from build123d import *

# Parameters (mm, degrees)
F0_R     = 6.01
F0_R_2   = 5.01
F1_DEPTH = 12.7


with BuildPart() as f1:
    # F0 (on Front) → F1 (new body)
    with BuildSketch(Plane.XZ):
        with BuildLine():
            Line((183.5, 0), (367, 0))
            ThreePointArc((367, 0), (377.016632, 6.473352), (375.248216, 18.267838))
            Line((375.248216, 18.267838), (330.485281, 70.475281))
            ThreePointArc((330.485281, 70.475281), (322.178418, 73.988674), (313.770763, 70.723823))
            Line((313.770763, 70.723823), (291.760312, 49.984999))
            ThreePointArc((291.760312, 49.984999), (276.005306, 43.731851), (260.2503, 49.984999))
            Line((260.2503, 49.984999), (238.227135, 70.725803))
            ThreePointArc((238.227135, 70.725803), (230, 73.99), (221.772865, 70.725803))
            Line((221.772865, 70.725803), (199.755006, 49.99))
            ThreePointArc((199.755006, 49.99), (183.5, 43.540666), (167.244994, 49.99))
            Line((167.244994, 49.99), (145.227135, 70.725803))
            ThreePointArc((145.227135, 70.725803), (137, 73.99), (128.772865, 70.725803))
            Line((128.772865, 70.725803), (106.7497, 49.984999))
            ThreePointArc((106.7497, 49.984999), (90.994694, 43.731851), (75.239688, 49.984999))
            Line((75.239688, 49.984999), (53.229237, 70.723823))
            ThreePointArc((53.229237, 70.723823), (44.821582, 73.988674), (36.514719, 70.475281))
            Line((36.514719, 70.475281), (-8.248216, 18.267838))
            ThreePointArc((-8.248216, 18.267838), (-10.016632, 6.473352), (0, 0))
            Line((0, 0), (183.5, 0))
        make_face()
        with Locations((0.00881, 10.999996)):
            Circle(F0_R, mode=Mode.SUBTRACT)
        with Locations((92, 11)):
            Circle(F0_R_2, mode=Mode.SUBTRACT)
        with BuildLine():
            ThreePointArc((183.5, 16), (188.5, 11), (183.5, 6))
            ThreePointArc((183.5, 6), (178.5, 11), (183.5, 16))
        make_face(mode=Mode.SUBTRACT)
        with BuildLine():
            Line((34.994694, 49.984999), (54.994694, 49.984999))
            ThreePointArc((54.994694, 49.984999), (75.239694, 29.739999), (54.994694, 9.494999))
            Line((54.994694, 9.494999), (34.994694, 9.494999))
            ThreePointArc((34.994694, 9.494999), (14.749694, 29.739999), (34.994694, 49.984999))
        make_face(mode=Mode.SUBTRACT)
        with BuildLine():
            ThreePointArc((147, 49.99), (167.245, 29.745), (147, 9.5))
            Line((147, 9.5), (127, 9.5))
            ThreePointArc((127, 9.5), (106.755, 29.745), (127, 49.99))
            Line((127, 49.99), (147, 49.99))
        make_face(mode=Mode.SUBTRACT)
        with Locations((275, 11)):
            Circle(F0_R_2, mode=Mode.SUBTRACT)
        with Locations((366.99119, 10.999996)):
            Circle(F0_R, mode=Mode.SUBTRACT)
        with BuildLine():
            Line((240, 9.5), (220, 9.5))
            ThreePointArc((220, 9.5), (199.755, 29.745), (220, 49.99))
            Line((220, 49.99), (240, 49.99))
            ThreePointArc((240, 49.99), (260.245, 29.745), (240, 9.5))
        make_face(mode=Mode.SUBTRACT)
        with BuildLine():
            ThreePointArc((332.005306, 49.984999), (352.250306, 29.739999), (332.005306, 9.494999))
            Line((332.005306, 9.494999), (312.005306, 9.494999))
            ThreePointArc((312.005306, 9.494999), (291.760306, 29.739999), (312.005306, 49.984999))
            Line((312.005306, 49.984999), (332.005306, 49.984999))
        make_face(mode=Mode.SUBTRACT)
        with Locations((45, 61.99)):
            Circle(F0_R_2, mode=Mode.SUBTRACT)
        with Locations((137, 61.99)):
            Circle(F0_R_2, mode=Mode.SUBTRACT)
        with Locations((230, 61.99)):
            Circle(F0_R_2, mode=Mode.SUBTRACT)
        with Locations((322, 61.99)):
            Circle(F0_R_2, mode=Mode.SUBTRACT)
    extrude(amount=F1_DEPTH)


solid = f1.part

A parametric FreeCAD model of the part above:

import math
import FreeCAD as App
import Part
import Sketcher
from FreeCAD import Vector
Q = App.Units.Quantity

doc = App.newDocument("Part")
params = doc.addObject("Spreadsheet::Sheet", "Params")
for row, (alias, value) in enumerate([
    ("sketch1_diameter", "10 mm"),
    ("sketch1_radius", "11 mm"),
    ("sketch1_radius2", "11.999998 mm"),
    ("sketch1_radius3", "12.000001 mm"),
    ("sketch1_diameter2", "12.02 mm"),
    ("pad1_length", "12.7 mm"),
], start=1):
    params.set(f"A{row}", alias)
    params.set(f"B{row}", "=" + value)
    params.setAlias(f"B{row}", alias)

body = doc.addObject("PartDesign::Body", "Body")

# Sketch on XZ plane
sketch1 = doc.addObject("Sketcher::SketchObject", "Sketch")
body.addObject(sketch1)
sketch1.AttachmentSupport = (doc.XZ_Plane, [""])
sketch1.MapMode = "FlatFace"
sketch1.addGeometry(Part.ArcOfCircle(Part.Circle(Vector(367, 11, 0), Vector(0, 0, 1), 11), math.radians(-90), math.radians(41)), False)
sketch1.addGeometry(Part.LineSegment(Vector(375, 18, 0), Vector(330, 70, 0)), False)
sketch1.addGeometry(Part.ArcOfCircle(Part.Circle(Vector(322, 62, 0), Vector(0, 0, 1), 12), math.radians(45), math.radians(133)), False)
sketch1.addGeometry(Part.LineSegment(Vector(314, 71, 0), Vector(292, 50, 0)), False)
sketch1.addGeometry(Part.ArcOfCircle(Part.Circle(Vector(276, 67, 0), Vector(0, 0, 1), 23), math.radians(-133), math.radians(-47)), False)
sketch1.addGeometry(Part.LineSegment(Vector(260, 50, 0), Vector(238, 71, 0)), False)
sketch1.addGeometry(Part.ArcOfCircle(Part.Circle(Vector(230, 62, 0), Vector(0, 0, 1), 12), math.radians(47), math.radians(133)), False)
sketch1.addGeometry(Part.LineSegment(Vector(222, 71, 0), Vector(200, 50, 0)), False)
sketch1.addGeometry(Part.ArcOfCircle(Part.Circle(Vector(184, 67, 0), Vector(0, 0, 1), 24), math.radians(-133), math.radians(-47)), False)
sketch1.addGeometry(Part.LineSegment(Vector(167, 50, 0), Vector(145, 71, 0)), False)
sketch1.addGeometry(Part.ArcOfCircle(Part.Circle(Vector(137, 62, 0), Vector(0, 0, 1), 12), math.radians(47), math.radians(133)), False)
sketch1.addGeometry(Part.LineSegment(Vector(129, 71, 0), Vector(107, 50, 0)), False)
sketch1.addGeometry(Part.ArcOfCircle(Part.Circle(Vector(91, 67, 0), Vector(0, 0, 1), 23), math.radians(-133), math.radians(-47)), False)
sketch1.addGeometry(Part.LineSegment(Vector(75, 50, 0), Vector(53, 71, 0)), False)
sketch1.addGeometry(Part.ArcOfCircle(Part.Circle(Vector(45, 62, 0), Vector(0, 0, 1), 12), math.radians(47), math.radians(135)), False)
sketch1.addGeometry(Part.LineSegment(Vector(37, 70, 0), Vector(-8, 18, 0)), False)
sketch1.addGeometry(Part.ArcOfCircle(Part.Circle(Vector(0, 11, 0), Vector(0, 0, 1), 11), math.radians(139), math.radians(270)), False)
sketch1.addGeometry(Part.LineSegment(Vector(0, 0, 0), Vector(367, 0, 0)), False)
sketch1.addGeometry(Part.Circle(Vector(0, 11, 0), Vector(0, 0, 1), 6), False)
sketch1.addGeometry(Part.Circle(Vector(92, 11, 0), Vector(0, 0, 1), 5), False)
sketch1.addGeometry(Part.Circle(Vector(184, 11, 0), Vector(0, 0, 1), 5), False)
sketch1.addGeometry(Part.ArcOfCircle(Part.Circle(Vector(35, 30, 0), Vector(0, 0, 1), 20), math.radians(90), math.radians(270)), False)
sketch1.addGeometry(Part.LineSegment(Vector(35, 50, 0), Vector(55, 50, 0)), False)
sketch1.addGeometry(Part.ArcOfCircle(Part.Circle(Vector(55, 30, 0), Vector(0, 0, 1), 20), math.radians(-90), math.radians(90)), False)
sketch1.addGeometry(Part.LineSegment(Vector(55, 9, 0), Vector(35, 9, 0)), False)
sketch1.addGeometry(Part.LineSegment(Vector(127, 50, 0), Vector(147, 50, 0)), False)
sketch1.addGeometry(Part.ArcOfCircle(Part.Circle(Vector(147, 30, 0), Vector(0, 0, 1), 20), math.radians(-90), math.radians(90)), False)
sketch1.addGeometry(Part.LineSegment(Vector(147, 10, 0), Vector(127, 10, 0)), False)
sketch1.addGeometry(Part.ArcOfCircle(Part.Circle(Vector(127, 30, 0), Vector(0, 0, 1), 20), math.radians(90), math.radians(270)), False)
sketch1.addGeometry(Part.Circle(Vector(275, 11, 0), Vector(0, 0, 1), 5), False)
sketch1.addGeometry(Part.Circle(Vector(367, 11, 0), Vector(0, 0, 1), 6), False)
sketch1.addGeometry(Part.ArcOfCircle(Part.Circle(Vector(240, 30, 0), Vector(0, 0, 1), 20), math.radians(-90), math.radians(90)), False)
sketch1.addGeometry(Part.LineSegment(Vector(240, 10, 0), Vector(220, 10, 0)), False)
sketch1.addGeometry(Part.ArcOfCircle(Part.Circle(Vector(220, 30, 0), Vector(0, 0, 1), 20), math.radians(90), math.radians(270)), False)
sketch1.addGeometry(Part.LineSegment(Vector(220, 50, 0), Vector(240, 50, 0)), False)
sketch1.addGeometry(Part.LineSegment(Vector(312, 50, 0), Vector(332, 50, 0)), False)
sketch1.addGeometry(Part.ArcOfCircle(Part.Circle(Vector(332, 30, 0), Vector(0, 0, 1), 20), math.radians(-90), math.radians(90)), False)
sketch1.addGeometry(Part.LineSegment(Vector(332, 9, 0), Vector(312, 9, 0)), False)
sketch1.addGeometry(Part.ArcOfCircle(Part.Circle(Vector(312, 30, 0), Vector(0, 0, 1), 20), math.radians(90), math.radians(270)), False)
sketch1.addGeometry(Part.Circle(Vector(45, 62, 0), Vector(0, 0, 1), 5), False)
sketch1.addGeometry(Part.Circle(Vector(137, 62, 0), Vector(0, 0, 1), 5), False)
sketch1.addGeometry(Part.Circle(Vector(230, 62, 0), Vector(0, 0, 1), 5), False)
sketch1.addGeometry(Part.Circle(Vector(322, 62, 0), Vector(0, 0, 1), 5), False)
sketch1.addConstraint(Sketcher.Constraint("Coincident", 0, 2, 1, 1))
sketch1.addConstraint(Sketcher.Constraint("Coincident", 1, 2, 2, 1))
sketch1.addConstraint(Sketcher.Constraint("Tangent", 2, 2, 3, 1))
sketch1.addConstraint(Sketcher.Constraint("Tangent", 3, 2, 4, 2))
sketch1.addConstraint(Sketcher.Constraint("Coincident", 4, 1, 5, 1))
sketch1.addConstraint(Sketcher.Constraint("Tangent", 5, 2, 6, 1))
sketch1.addConstraint(Sketcher.Constraint("Tangent", 6, 2, 7, 1))
sketch1.addConstraint(Sketcher.Constraint("Tangent", 7, 2, 8, 2))
sketch1.addConstraint(Sketcher.Constraint("Tangent", 8, 1, 9, 1))
sketch1.addConstraint(Sketcher.Constraint("Tangent", 9, 2, 10, 1))
sketch1.addConstraint(Sketcher.Constraint("Tangent", 10, 2, 11, 1))
sketch1.addConstraint(Sketcher.Constraint("Coincident", 11, 2, 12, 2))
sketch1.addConstraint(Sketcher.Constraint("Tangent", 12, 1, 13, 1))
sketch1.addConstraint(Sketcher.Constraint("Tangent", 13, 2, 14, 1))
sketch1.addConstraint(Sketcher.Constraint("Coincident", 14, 2, 15, 1))
sketch1.addConstraint(Sketcher.Constraint("Coincident", 15, 2, 16, 1))
sketch1.addConstraint(Sketcher.Constraint("Coincident", 16, 2, 17, 1))
sketch1.addConstraint(Sketcher.Constraint("Coincident", 17, 2, 0, 1))
sketch1.addConstraint(Sketcher.Constraint("Tangent", 21, 1, 22, 1))
sketch1.addConstraint(Sketcher.Constraint("Tangent", 22, 2, 23, 2))
sketch1.addConstraint(Sketcher.Constraint("Tangent", 23, 1, 24, 1))
sketch1.addConstraint(Sketcher.Constraint("Tangent", 24, 2, 21, 2))
sketch1.addConstraint(Sketcher.Constraint("Tangent", 25, 2, 26, 2))
sketch1.addConstraint(Sketcher.Constraint("Tangent", 26, 1, 27, 1))
sketch1.addConstraint(Sketcher.Constraint("Tangent", 27, 2, 28, 2))
sketch1.addConstraint(Sketcher.Constraint("Tangent", 28, 1, 25, 1))
sketch1.addConstraint(Sketcher.Constraint("Tangent", 31, 1, 32, 1))
sketch1.addConstraint(Sketcher.Constraint("Tangent", 32, 2, 33, 2))
sketch1.addConstraint(Sketcher.Constraint("Tangent", 33, 1, 34, 1))
sketch1.addConstraint(Sketcher.Constraint("Tangent", 34, 2, 31, 2))
sketch1.addConstraint(Sketcher.Constraint("Tangent", 35, 2, 36, 2))
sketch1.addConstraint(Sketcher.Constraint("Tangent", 36, 1, 37, 1))
sketch1.addConstraint(Sketcher.Constraint("Tangent", 37, 2, 38, 2))
sketch1.addConstraint(Sketcher.Constraint("Tangent", 38, 1, 35, 1))
sketch1.addConstraint(Sketcher.Constraint("Horizontal", 17))
sketch1.addConstraint(Sketcher.Constraint("Horizontal", 22))
sketch1.addConstraint(Sketcher.Constraint("Horizontal", 24))
sketch1.addConstraint(Sketcher.Constraint("Horizontal", 25))
sketch1.addConstraint(Sketcher.Constraint("Horizontal", 27))
sketch1.addConstraint(Sketcher.Constraint("Horizontal", 32))
sketch1.addConstraint(Sketcher.Constraint("Horizontal", 34))
sketch1.addConstraint(Sketcher.Constraint("Horizontal", 35))
sketch1.addConstraint(Sketcher.Constraint("Horizontal", 37))
sketch1.addConstraint(Sketcher.Constraint("Coincident", 16, 2, -1, 1))
sketch1.addConstraint(Sketcher.Constraint("Coincident", 18, 3, 16, 3))
sketch1.addConstraint(Sketcher.Constraint("Coincident", 30, 3, 0, 3))
sketch1.addConstraint(Sketcher.Constraint("Coincident", 39, 3, 14, 3))
sketch1.addConstraint(Sketcher.Constraint("Coincident", 40, 3, 10, 3))
sketch1.addConstraint(Sketcher.Constraint("Coincident", 41, 3, 6, 3))
sketch1.addConstraint(Sketcher.Constraint("Coincident", 42, 3, 2, 3))
sketch1.addConstraint(Sketcher.Constraint("Equal", 6, 10))
sketch1.addConstraint(Sketcher.Constraint("Equal", 4, 12))
sketch1.addConstraint(Sketcher.Constraint("Equal", 2, 14))
sketch1.addConstraint(Sketcher.Constraint("Equal", 0, 16))
sketch1.addConstraint(Sketcher.Constraint("Equal", 23, 26))
sketch1.addConstraint(Sketcher.Constraint("Equal", 19, 29))
sketch1.addConstraint(Sketcher.Constraint("Equal", 18, 30))
sketch1.addConstraint(Sketcher.Constraint("Equal", 28, 31))
sketch1.addConstraint(Sketcher.Constraint("Equal", 33, 36))
sketch1.addConstraint(Sketcher.Constraint("Equal", 29, 39))
sketch1.addConstraint(Sketcher.Constraint("Equal", 39, 40))
sketch1.addConstraint(Sketcher.Constraint("Equal", 40, 41))
sketch1.addConstraint(Sketcher.Constraint("Equal", 41, 42))
sketch1.addConstraint(Sketcher.Constraint("Parallel", 5, 9))
sketch1.addConstraint(Sketcher.Constraint("Parallel", 7, 11))
sketch1.addConstraint(Sketcher.Constraint("Horizontal", 6, 3, 10, 3))
sketch1.addConstraint(Sketcher.Constraint("Horizontal", 4, 3, 12, 3))
sketch1.addConstraint(Sketcher.Constraint("Horizontal", 2, 3, 14, 3))
sketch1.addConstraint(Sketcher.Constraint("Horizontal", 19, 3, 20, 3))
sketch1.addConstraint(Sketcher.Constraint("Horizontal", 20, 3, 29, 3))
sketch1.addConstraint(Sketcher.Constraint("Horizontal", 28, 3, 31, 3))
sketch1.addConstraint(Sketcher.Constraint("Horizontal", 23, 3, 36, 3))
sketch1.addConstraint(Sketcher.Constraint("Horizontal", 10, 3, 39, 3))
sketch1.addConstraint(Sketcher.Constraint("Horizontal", 3, 2, 4, 1))
sketch1.addConstraint(Sketcher.Constraint("Horizontal", 5, 2, 6, 2))
sketch1.addConstraint(Sketcher.Constraint("Horizontal", 4, 1, 11, 2))
sketch1.addConstraint(Sketcher.Constraint("Horizontal", 11, 2, 12, 1))
sketch1.addConstraint(Sketcher.Constraint("Horizontal", 1, 2, 14, 2))
sketch1.addConstraint(Sketcher.Constraint("Horizontal", 0, 2, 15, 2))
sketch1.addConstraint(Sketcher.Constraint("Horizontal", 12, 1, 21, 1))
sketch1.addConstraint(Sketcher.Constraint("Horizontal", 8, 1, 25, 2))
sketch1.addConstraint(Sketcher.Constraint("Vertical", 8, 3, 20, 3))
sketch1.addConstraint(Sketcher.Constraint("Equal", 24, 25))
sketch1.addConstraint(Sketcher.Constraint("Equal", 27, 32))
sketch1.addConstraint(Sketcher.Constraint("Equal", 34, 35))
sketch1.addConstraint(Sketcher.Constraint("Equal", 1, 15))
sketch1.addConstraint(Sketcher.Constraint("Diameter", 20, Q("10 mm")))
sketch1.addConstraint(Sketcher.Constraint("Radius", 0, Q("11 mm")))
sketch1.addConstraint(Sketcher.Constraint("Radius", 2, Q("11.999998 mm")))
sketch1.addConstraint(Sketcher.Constraint("Radius", 6, Q("12.000001 mm")))
sketch1.addConstraint(Sketcher.Constraint("Diameter", 18, Q("12.02 mm")))
sketch1.addConstraint(Sketcher.Constraint("Diameter", 19, Q("10.02 mm")))
sketch1.addConstraint(Sketcher.Constraint("DistanceX", 17, 1, 17, 2, Q("367 mm")))
sketch1.addConstraint(Sketcher.Constraint("DistanceX", 22, 1, 22, 2, Q("20 mm")))
sketch1.addConstraint(Sketcher.Constraint("DistanceX", -1, 1, 2, 3, Q("321.999999 mm")))
sketch1.addConstraint(Sketcher.Constraint("DistanceX", -1, 1, 6, 3, Q("230 mm")))
sketch1.addConstraint(Sketcher.Constraint("DistanceX", -1, 1, 10, 3, Q("137 mm")))
sketch1.addConstraint(Sketcher.Constraint("DistanceX", -1, 1, 19, 3, Q("92 mm")))
sketch1.addConstraint(Sketcher.Constraint("DistanceY", -1, 1, 19, 3, Q("11 mm")))
sketch1.addConstraint(Sketcher.Constraint("DistanceX", -1, 1, 26, 3, Q("147 mm")))
sketch1.addConstraint(Sketcher.Constraint("DistanceX", -1, 1, 29, 3, Q("275 mm")))
sketch1.addConstraint(Sketcher.Constraint("DistanceX", -1, 1, 31, 3, Q("240 mm")))
sketch1.addConstraint(Sketcher.Constraint("Radius", 21, Q("20.245 mm")))
sketch1.addConstraint(Sketcher.Constraint("DistanceX", 21, 3, 12, 3, Q("56 mm")))
sketch1.addConstraint(Sketcher.Constraint("DistanceX", 4, 3, 36, 3, Q("56 mm")))
sketch1.addConstraint(Sketcher.Constraint("DistanceY", 7, 2, 6, 3, Q("11.999999 mm")))
sketch1.addConstraint(Sketcher.Constraint("DistanceY", -1, 1, 26, 1, Q("9.5 mm")))
sketch1.addConstraint(Sketcher.Constraint("DistanceY", -1, 1, 21, 3, Q("29.739999 mm")))
sketch1.addConstraint(Sketcher.Constraint("Radius", 4, Q("22.974194 mm")))
sketch1.addConstraint(Sketcher.Constraint("Radius", 8, Q("23.709357 mm")))
sketch1.addConstraint(Sketcher.Constraint("Distance", 1, Q("68.770179 mm")))
sketch1.addConstraint(Sketcher.Constraint("DistanceX", -1, 1, 0, 3, Q("366.99119 mm")))
sketch1.addConstraint(Sketcher.Constraint("DistanceY", -1, 1, 0, 2, Q("18.267838 mm")))
sketch1.setExpression("Constraints[86]", "Params.sketch1_diameter")
sketch1.setExpression("Constraints[87]", "Params.sketch1_radius")
sketch1.setExpression("Constraints[88]", "Params.sketch1_radius2")
sketch1.setExpression("Constraints[89]", "Params.sketch1_radius3")
sketch1.setExpression("Constraints[90]", "Params.sketch1_diameter2")
pad1 = doc.addObject("PartDesign::Pad", "Pad")
body.addObject(pad1)
pad1.Profile = sketch1
pad1.setExpression("Length", "Params.pad1_length")

doc.recompute()
